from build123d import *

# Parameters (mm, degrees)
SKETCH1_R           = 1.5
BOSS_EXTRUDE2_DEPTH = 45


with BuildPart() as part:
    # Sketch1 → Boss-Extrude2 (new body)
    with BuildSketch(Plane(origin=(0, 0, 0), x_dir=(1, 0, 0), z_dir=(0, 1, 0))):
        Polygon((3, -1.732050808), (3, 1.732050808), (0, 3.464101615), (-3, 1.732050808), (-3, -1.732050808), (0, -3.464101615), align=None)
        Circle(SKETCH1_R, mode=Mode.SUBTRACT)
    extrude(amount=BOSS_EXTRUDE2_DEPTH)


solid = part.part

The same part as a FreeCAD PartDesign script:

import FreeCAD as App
import Part
import Sketcher
from FreeCAD import Vector
Q = App.Units.Quantity


def add_polygon(sketch, points):
    """Adds a closed chain of lines whose ends are joined by coincident constraints."""
    first, n = sketch.GeometryCount, len(points)
    for a, b in zip(points, points[1:] + points[:1]):
        sketch.addGeometry(Part.LineSegment(App.Vector(*a, 0), App.Vector(*b, 0)), False)
    for i in range(n):
        sketch.addConstraint(Sketcher.Constraint("Coincident", first + i, 2, first + (i + 1) % n, 1))

doc = App.newDocument("Part")
body = doc.addObject("PartDesign::Body", "Body")

# Sketch on XZ plane
sketch1 = body.newObject("Sketcher::SketchObject", "Sketch")
sketch1.AttachmentSupport = (doc.getObject("XZ_Plane"), [""])
sketch1.MapMode = "FlatFace"
add_polygon(sketch1, [(3, 1.7), (3, -1.7), (0, -3.5), (-3, -1.7), (-3, 1.7), (0, 3.5)])  # lines 0-5
sketch1.addGeometry(Part.Circle(Vector(0, 0, 0), Vector(0, 0, 1), 1.5), False)  # 6
sketch1.addConstraint(Sketcher.Constraint("Vertical", 0))
sketch1.addConstraint(Sketcher.Constraint("Vertical", 3))
sketch1.addConstraint(Sketcher.Constraint("Coincident", 6, 3, -1, 1))
sketch1.addConstraint(Sketcher.Constraint("Symmetric", 0, 2, 3, 2, -1, 1))
sketch1.addConstraint(Sketcher.Constraint("Symmetric", 1, 2, 4, 2, -1, 1))
sketch1.addConstraint(Sketcher.Constraint("PointOnObject", 1, 2, -2))
sketch1.addConstraint(Sketcher.Constraint("Parallel", 2, 5))
sketch1.addConstraint(Sketcher.Constraint("Horizontal", 0, 2, 2, 2))
sketch1.addConstraint(Sketcher.Constraint("Diameter", 6, Q("3 mm")))
sketch1.addConstraint(Sketcher.Constraint("Angle", 1, Q("-150 deg")))
sketch1.addConstraint(Sketcher.Constraint("DistanceX", -1, 1, 0, 2, Q("3 mm")))
sketch1.addConstraint(Sketcher.Constraint("DistanceY", 0, 2, 0, 1, Q("3.464102 mm")))
pad1 = body.newObject("PartDesign::Pad", "Pad")
pad1.Profile = sketch1
pad1.Length = 45
pad1.Reversed = True

doc.recompute()
